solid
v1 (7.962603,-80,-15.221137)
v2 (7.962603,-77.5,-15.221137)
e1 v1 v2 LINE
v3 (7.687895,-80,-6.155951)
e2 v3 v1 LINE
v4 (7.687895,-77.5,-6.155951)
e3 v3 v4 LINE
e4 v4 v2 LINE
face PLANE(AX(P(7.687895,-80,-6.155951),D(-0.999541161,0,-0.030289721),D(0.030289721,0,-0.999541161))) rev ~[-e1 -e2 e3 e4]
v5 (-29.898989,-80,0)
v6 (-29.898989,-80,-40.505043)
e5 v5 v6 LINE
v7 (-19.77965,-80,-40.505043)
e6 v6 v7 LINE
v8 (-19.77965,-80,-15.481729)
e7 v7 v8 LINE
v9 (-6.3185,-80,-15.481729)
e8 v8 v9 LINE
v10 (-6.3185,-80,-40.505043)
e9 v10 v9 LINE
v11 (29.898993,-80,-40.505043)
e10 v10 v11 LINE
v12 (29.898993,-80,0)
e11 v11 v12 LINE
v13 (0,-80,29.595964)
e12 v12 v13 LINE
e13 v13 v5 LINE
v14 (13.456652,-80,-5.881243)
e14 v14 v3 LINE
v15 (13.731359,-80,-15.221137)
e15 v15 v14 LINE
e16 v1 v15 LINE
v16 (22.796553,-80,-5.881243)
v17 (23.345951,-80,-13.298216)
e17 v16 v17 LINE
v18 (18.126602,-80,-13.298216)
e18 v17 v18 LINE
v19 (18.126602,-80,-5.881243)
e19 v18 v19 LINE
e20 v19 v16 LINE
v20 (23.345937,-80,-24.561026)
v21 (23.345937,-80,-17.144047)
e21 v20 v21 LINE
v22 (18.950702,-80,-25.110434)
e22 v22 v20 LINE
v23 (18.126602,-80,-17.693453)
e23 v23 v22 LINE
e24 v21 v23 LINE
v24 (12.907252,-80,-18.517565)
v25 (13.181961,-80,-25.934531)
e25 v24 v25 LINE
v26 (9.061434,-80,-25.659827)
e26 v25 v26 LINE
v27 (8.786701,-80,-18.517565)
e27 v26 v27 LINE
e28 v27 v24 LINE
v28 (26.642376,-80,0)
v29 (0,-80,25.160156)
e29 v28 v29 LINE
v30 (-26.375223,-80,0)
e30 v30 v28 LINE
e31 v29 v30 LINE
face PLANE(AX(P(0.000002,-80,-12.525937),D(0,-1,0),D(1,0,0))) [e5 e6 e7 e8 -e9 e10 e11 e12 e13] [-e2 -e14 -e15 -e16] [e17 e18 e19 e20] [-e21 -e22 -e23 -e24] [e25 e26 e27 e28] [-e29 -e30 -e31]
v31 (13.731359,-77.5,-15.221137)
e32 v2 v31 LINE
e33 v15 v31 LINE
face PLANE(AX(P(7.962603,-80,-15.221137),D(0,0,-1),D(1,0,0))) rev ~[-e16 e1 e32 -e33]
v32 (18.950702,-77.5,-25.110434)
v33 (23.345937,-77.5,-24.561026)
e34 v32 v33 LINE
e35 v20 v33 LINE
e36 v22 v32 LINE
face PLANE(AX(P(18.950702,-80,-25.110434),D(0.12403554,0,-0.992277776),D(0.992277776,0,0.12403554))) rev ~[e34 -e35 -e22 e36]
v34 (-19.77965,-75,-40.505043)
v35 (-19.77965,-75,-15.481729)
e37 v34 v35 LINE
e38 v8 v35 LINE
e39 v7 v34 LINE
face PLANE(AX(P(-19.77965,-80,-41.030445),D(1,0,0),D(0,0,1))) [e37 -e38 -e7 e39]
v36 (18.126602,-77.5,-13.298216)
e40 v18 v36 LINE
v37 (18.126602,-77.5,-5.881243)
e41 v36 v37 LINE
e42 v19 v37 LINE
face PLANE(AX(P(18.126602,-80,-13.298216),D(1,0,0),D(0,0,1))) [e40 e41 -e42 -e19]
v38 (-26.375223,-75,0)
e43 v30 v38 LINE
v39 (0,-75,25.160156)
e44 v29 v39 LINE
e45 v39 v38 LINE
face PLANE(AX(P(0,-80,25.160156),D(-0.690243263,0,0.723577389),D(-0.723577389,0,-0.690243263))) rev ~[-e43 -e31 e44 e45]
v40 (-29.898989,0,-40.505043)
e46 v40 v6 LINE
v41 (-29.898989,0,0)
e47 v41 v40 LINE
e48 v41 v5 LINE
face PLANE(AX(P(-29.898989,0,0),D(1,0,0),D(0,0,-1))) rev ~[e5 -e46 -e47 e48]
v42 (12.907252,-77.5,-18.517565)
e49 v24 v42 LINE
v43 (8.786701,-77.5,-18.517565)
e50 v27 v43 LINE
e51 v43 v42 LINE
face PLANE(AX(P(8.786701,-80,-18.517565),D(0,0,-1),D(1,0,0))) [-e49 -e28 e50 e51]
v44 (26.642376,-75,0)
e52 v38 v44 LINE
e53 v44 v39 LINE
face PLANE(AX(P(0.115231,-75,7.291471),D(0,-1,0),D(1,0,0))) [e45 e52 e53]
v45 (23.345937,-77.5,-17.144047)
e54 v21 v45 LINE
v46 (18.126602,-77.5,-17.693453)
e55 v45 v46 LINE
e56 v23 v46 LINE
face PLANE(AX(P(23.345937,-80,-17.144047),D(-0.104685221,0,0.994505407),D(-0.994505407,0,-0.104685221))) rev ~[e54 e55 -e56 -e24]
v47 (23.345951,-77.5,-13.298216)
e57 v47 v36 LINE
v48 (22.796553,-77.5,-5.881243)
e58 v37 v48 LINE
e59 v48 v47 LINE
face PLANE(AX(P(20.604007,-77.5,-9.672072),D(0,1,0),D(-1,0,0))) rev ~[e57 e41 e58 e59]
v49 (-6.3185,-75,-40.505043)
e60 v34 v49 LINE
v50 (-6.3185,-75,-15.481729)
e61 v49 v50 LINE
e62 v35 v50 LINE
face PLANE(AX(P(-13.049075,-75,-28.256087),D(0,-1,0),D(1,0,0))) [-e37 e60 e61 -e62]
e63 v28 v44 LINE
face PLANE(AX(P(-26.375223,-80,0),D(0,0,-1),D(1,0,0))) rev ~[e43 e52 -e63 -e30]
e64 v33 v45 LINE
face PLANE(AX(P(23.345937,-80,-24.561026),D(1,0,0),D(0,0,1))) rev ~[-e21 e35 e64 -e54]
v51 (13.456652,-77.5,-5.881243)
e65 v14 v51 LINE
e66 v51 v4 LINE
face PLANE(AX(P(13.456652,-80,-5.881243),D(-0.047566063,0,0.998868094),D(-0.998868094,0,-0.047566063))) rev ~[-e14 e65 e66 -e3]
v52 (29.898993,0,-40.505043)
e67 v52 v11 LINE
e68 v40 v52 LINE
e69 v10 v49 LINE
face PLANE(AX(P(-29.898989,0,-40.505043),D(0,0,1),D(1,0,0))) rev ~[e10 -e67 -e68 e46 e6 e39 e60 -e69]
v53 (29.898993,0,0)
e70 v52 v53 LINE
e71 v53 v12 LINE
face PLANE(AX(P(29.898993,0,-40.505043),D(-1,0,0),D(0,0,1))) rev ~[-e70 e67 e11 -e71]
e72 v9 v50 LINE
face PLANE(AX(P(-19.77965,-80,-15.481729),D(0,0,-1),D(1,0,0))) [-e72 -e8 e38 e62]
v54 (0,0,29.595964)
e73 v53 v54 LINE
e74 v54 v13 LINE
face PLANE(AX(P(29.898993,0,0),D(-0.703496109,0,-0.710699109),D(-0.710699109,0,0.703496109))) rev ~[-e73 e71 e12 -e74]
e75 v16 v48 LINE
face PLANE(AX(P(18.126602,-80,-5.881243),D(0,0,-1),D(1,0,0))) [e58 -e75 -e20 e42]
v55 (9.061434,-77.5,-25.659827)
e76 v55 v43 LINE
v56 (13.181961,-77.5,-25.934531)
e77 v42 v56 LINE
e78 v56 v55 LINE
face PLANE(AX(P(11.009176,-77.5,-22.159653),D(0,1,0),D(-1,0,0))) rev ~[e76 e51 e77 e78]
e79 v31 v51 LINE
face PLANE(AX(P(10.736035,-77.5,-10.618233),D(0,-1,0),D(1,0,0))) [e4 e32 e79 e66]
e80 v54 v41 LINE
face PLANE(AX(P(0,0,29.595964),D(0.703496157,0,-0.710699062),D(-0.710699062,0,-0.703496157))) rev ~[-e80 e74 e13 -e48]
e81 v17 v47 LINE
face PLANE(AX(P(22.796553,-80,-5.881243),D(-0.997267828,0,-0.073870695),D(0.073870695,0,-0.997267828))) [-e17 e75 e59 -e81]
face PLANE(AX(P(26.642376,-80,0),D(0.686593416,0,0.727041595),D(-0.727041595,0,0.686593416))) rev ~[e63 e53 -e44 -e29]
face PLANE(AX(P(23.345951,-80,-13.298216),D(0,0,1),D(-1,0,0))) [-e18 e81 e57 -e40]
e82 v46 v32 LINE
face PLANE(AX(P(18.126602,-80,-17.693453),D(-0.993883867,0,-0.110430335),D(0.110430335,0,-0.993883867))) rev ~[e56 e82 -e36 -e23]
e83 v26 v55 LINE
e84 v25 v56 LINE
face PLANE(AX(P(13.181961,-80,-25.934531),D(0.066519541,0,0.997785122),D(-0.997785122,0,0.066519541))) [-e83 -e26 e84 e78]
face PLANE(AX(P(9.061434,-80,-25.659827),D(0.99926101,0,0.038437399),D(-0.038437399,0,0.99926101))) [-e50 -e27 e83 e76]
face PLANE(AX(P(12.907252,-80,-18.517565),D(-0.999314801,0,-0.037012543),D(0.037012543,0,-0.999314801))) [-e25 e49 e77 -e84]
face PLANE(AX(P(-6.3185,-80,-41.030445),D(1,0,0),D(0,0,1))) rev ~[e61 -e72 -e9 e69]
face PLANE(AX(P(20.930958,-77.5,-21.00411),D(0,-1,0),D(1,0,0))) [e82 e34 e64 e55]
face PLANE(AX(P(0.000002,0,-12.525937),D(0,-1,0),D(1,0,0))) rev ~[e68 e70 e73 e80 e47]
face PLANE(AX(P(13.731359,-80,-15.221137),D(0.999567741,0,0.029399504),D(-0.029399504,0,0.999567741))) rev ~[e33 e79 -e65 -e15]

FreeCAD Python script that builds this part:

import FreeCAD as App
import Part
import Sketcher

V = App.Vector

doc = App.newDocument("Part")
body = doc.addObject("PartDesign::Body", "Body")

# Sketch on XZ plane
sketch1 = doc.addObject("Sketcher::SketchObject", "Sketch")
body.addObject(sketch1)
sketch1.AttachmentSupport = (doc.XZ_Plane, [""])
sketch1.MapMode = "FlatFace"
sketch1.addGeometry([
    Part.LineSegment(V(0, 30, 0), V(-30, 0, 0)),  # 0
    Part.LineSegment(V(-30, 0, 0), V(-30, -41, 0)),  # 1
    Part.LineSegment(V(-30, -41, 0), V(30, -41, 0)),  # 2
    Part.LineSegment(V(30, -41, 0), V(30, 0, 0)),  # 3
    Part.LineSegment(V(30, 0, 0), V(0, 30, 0)),  # 4
], False)
sketch1.addConstraint([
    Sketcher.Constraint("Coincident", 0, 2, 1, 1),
    Sketcher.Constraint("Coincident", 1, 2, 2, 1),
    Sketcher.Constraint("Coincident", 2, 2, 3, 1),
    Sketcher.Constraint("Coincident", 3, 2, 4, 1),
    Sketcher.Constraint("Coincident", 4, 2, 0, 1),
    Sketcher.Constraint("Vertical", 1),
    Sketcher.Constraint("Horizontal", 2),
    Sketcher.Constraint("Vertical", 3),
    Sketcher.Constraint("Symmetric", 0, 2, 3, 2, -1, 1),
    Sketcher.Constraint("PointOnObject", 0, 2, -1),
    Sketcher.Constraint("PointOnObject", 4, 2, -2),
    Sketcher.Constraint("Distance", 0, 42.06983),
    Sketcher.Constraint("DistanceX", 2, 1, 2, 2, 59.797982),
    Sketcher.Constraint("DistanceY", 1, 2, 1, 1, 40.505043),
])
pad1 = doc.addObject("PartDesign::Pad", "Pad")
body.addObject(pad1)
pad1.Profile = sketch1
pad1.Length = 80

# Sketch on XZ plane
sketch2 = doc.addObject("Sketcher::SketchObject", "Sketch001")
body.addObject(sketch2)
sketch2.AttachmentSupport = (doc.XZ_Plane, [""])
sketch2.MapMode = "FlatFace"
sketch2.AttachmentOffset = App.Placement(V(0, 0, 80), App.Rotation())
sketch2.addGeometry([
    Part.LineSegment(V(-20, -15, 0), V(-20, -41, 0)),
    Part.LineSegment(V(-20, -41, 0), V(-6, -41, 0)),
    Part.LineSegment(V(-6, -41, 0), V(-6, -15, 0)),
    Part.LineSegment(V(-6, -15, 0), V(-20, -15, 0)),
], False)
sketch2.addConstraint([
    Sketcher.Constraint("Coincident", 0, 2, 1, 1),
    Sketcher.Constraint("Coincident", 1, 2, 2, 1),
    Sketcher.Constraint("Coincident", 2, 2, 3, 1),
    Sketcher.Constraint("Coincident", 3, 2, 0, 1),
    Sketcher.Constraint("Vertical", 0),
    Sketcher.Constraint("Horizontal", 1),
    Sketcher.Constraint("Vertical", 2),
    Sketcher.Constraint("Horizontal", 3),
    Sketcher.Constraint("DistanceX", 1, 1, 1, 2, 13.46115),
    Sketcher.Constraint("DistanceX", 1, 2, -1, 1, 6.3185),
    Sketcher.Constraint("DistanceY", 0, 2, 0, 1, 25.548716),
    Sketcher.Constraint("DistanceY", 2, 2, -1, 1, 15.481729),
])
pocket1 = doc.addObject("PartDesign::Pocket", "Pocket")
body.addObject(pocket1)
pocket1.Profile = sketch2
pocket1.Length = 5

# Sketch on XZ plane
sketch3 = doc.addObject("Sketcher::SketchObject", "Sketch002")
body.addObject(sketch3)
sketch3.AttachmentSupport = (doc.XZ_Plane, [""])
sketch3.MapMode = "FlatFace"
sketch3.AttachmentOffset = App.Placement(V(0, 0, 80), App.Rotation())
sketch3.addGeometry([
    Part.LineSegment(V(0, 25, 0), V(-26, 0, 0)),
    Part.LineSegment(V(-26, 0, 0), V(27, 0, 0)),
    Part.LineSegment(V(27, 0, 0), V(0, 25, 0)),
], False)
sketch3.addConstraint([
    Sketcher.Constraint("Coincident", 0, 2, 1, 1),
    Sketcher.Constraint("Coincident", 1, 2, 2, 1),
    Sketcher.Constraint("Coincident", 2, 2, 0, 1),
    Sketcher.Constraint("Horizontal", 1),
    Sketcher.Constraint("PointOnObject", 0, 2, -1),
    Sketcher.Constraint("PointOnObject", 2, 2, -2),
    Sketcher.Constraint("DistanceX", 1, 1, 1, 2, 53.017599),
    Sketcher.Constraint("Distance", 0, 36.451143),
    Sketcher.Constraint("Distance", 2, 36.644913),
])
pocket2 = doc.addObject("PartDesign::Pocket", "Pocket001")
body.addObject(pocket2)
pocket2.Profile = sketch3
pocket2.Length = 5

# Sketch on XZ plane
sketch4 = doc.addObject("Sketcher::SketchObject", "Sketch003")
body.addObject(sketch4)
sketch4.AttachmentSupport = (doc.XZ_Plane, [""])
sketch4.MapMode = "FlatFace"
sketch4.AttachmentOffset = App.Placement(V(0, 0, 80), App.Rotation())
sketch4.addGeometry([
    Part.LineSegment(V(18.1, -13.3, 0), V(23.3, -13.3, 0)),  # 0
    Part.LineSegment(V(23.3, -13.3, 0), V(22.8, -5.9, 0)),  # 1
    Part.LineSegment(V(22.8, -5.9, 0), V(18.1, -5.9, 0)),  # 2
    Part.LineSegment(V(18.1, -5.9, 0), V(18.1, -13.3, 0)),  # 3
    Part.LineSegment(V(12.9, -18.5, 0), V(8.8, -18.5, 0)),  # 4
    Part.LineSegment(V(8.8, -18.5, 0), V(9.1, -25.7, 0)),  # 5
    Part.LineSegment(V(9.1, -25.7, 0), V(13.2, -25.9, 0)),  # 6
    Part.LineSegment(V(13.2, -25.9, 0), V(12.9, -18.5, 0)),  # 7
    Part.LineSegment(V(18.1, -17.7, 0), V(19, -25.1, 0)),  # 8
    Part.LineSegment(V(19, -25.1, 0), V(23.3, -24.6, 0)),  # 9
    Part.LineSegment(V(23.3, -24.6, 0), V(23.3, -17.1, 0)),  # 10
    Part.LineSegment(V(23.3, -17.1, 0), V(18.1, -17.7, 0)),  # 11
], False)
sketch4.addConstraint([
    Sketcher.Constraint("Coincident", 0, 2, 1, 1),
    Sketcher.Constraint("Coincident", 1, 2, 2, 1),
    Sketcher.Constraint("Coincident", 2, 2, 3, 1),
    Sketcher.Constraint("Coincident", 3, 2, 0, 1),
    Sketcher.Constraint("Coincident", 4, 2, 5, 1),
    Sketcher.Constraint("Coincident", 5, 2, 6, 1),
    Sketcher.Constraint("Coincident", 6, 2, 7, 1),
    Sketcher.Constraint("Coincident", 7, 2, 4, 1),
    Sketcher.Constraint("Coincident", 8, 2, 9, 1),
    Sketcher.Constraint("Coincident", 9, 2, 10, 1),
    Sketcher.Constraint("Coincident", 10, 2, 11, 1),
    Sketcher.Constraint("Coincident", 11, 2, 8, 1),
    Sketcher.Constraint("Horizontal", 0),
    Sketcher.Constraint("Horizontal", 2),
    Sketcher.Constraint("Vertical", 3),
    Sketcher.Constraint("Horizontal", 4),
    Sketcher.Constraint("Vertical", 10),
    Sketcher.Constraint("Vertical", 3, 2, 11, 2),
    Sketcher.Constraint("DistanceX", 4, 2, 8, 2, 10.164001),
    Sketcher.Constraint("DistanceX", 0, 1, 0, 2, 5.219349),
    Sketcher.Constraint("DistanceX", 2, 2, 2, 1, 4.669951),
    Sketcher.Constraint("DistanceX", 4, 2, 4, 1, 4.120551),
    Sketcher.Constraint("DistanceY", 10, 1, 10, 2, 7.416979),
    Sketcher.Constraint("DistanceX", -1, 1, 2, 2, 18.126602),
    Sketcher.Constraint("DistanceX", -1, 1, 4, 2, 8.786701),
    Sketcher.Constraint("Distance", 7, 7.422052),
    Sketcher.Constraint("Distance", 9, 4.42944),
    Sketcher.Constraint("Distance", 11, 5.248172),
    Sketcher.Constraint("DistanceY", 3, 2, 3, 1, 7.416973),
    Sketcher.Constraint("DistanceX", -1, 1, 6, 2, 13.181961),
    Sketcher.Constraint("DistanceY", 6, 2, -1, 1, 25.934531),
    Sketcher.Constraint("DistanceY", 4, 2, 3, 2, 5.219349),
    Sketcher.Constraint("DistanceY", 5, 2, 4, 2, 7.142262),
    Sketcher.Constraint("DistanceX", 5, 2, 1, 2, 13.735119),
    Sketcher.Constraint("DistanceY", 8, 2, 7, 2, 6.592869),
    Sketcher.Constraint("DistanceY", 8, 2, 9, 2, 0.549408),
])
pocket3 = doc.addObject("PartDesign::Pocket", "Pocket002")
body.addObject(pocket3)
pocket3.Profile = sketch4
pocket3.Length = 2.5

# Sketch on XZ plane
sketch5 = doc.addObject("Sketcher::SketchObject", "Sketch004")
body.addObject(sketch5)
sketch5.AttachmentSupport = (doc.XZ_Plane, [""])
sketch5.MapMode = "FlatFace"
sketch5.AttachmentOffset = App.Placement(V(0, 0, 80), App.Rotation())
sketch5.addGeometry([
    Part.LineSegment(V(8, -6, 0), V(8, -15, 0)),
    Part.LineSegment(V(8, -15, 0), V(14, -15, 0)),
    Part.LineSegment(V(14, -15, 0), V(13, -6, 0)),
    Part.LineSegment(V(13, -6, 0), V(8, -6, 0)),
], False)
sketch5.addConstraint([
    Sketcher.Constraint("Coincident", 0, 2, 1, 1),
    Sketcher.Constraint("Coincident", 1, 2, 2, 1),
    Sketcher.Constraint("Coincident", 2, 2, 3, 1),
    Sketcher.Constraint("Coincident", 3, 2, 0, 1),
    Sketcher.Constraint("Horizontal", 1),
    Sketcher.Constraint("DistanceX", 1, 1, 1, 2, 5.768756),
    Sketcher.Constraint("DistanceX", -1, 1, 1, 2, 13.731359),
    Sketcher.Constraint("DistanceY", 3, 2, -1, 1, 6.155951),
    Sketcher.Constraint("DistanceX", 0, 2, 2, 2, 5.494049),
    Sketcher.Constraint("Distance", 0, 9.069347),
    Sketcher.Constraint("Distance", 2, 9.343933),
    Sketcher.Constraint("Distance", 3, 5.775294),
])
pocket4 = doc.addObject("PartDesign::Pocket", "Pocket003")
body.addObject(pocket4)
pocket4.Profile = sketch5
pocket4.Length = 2.5

doc.recompute()
